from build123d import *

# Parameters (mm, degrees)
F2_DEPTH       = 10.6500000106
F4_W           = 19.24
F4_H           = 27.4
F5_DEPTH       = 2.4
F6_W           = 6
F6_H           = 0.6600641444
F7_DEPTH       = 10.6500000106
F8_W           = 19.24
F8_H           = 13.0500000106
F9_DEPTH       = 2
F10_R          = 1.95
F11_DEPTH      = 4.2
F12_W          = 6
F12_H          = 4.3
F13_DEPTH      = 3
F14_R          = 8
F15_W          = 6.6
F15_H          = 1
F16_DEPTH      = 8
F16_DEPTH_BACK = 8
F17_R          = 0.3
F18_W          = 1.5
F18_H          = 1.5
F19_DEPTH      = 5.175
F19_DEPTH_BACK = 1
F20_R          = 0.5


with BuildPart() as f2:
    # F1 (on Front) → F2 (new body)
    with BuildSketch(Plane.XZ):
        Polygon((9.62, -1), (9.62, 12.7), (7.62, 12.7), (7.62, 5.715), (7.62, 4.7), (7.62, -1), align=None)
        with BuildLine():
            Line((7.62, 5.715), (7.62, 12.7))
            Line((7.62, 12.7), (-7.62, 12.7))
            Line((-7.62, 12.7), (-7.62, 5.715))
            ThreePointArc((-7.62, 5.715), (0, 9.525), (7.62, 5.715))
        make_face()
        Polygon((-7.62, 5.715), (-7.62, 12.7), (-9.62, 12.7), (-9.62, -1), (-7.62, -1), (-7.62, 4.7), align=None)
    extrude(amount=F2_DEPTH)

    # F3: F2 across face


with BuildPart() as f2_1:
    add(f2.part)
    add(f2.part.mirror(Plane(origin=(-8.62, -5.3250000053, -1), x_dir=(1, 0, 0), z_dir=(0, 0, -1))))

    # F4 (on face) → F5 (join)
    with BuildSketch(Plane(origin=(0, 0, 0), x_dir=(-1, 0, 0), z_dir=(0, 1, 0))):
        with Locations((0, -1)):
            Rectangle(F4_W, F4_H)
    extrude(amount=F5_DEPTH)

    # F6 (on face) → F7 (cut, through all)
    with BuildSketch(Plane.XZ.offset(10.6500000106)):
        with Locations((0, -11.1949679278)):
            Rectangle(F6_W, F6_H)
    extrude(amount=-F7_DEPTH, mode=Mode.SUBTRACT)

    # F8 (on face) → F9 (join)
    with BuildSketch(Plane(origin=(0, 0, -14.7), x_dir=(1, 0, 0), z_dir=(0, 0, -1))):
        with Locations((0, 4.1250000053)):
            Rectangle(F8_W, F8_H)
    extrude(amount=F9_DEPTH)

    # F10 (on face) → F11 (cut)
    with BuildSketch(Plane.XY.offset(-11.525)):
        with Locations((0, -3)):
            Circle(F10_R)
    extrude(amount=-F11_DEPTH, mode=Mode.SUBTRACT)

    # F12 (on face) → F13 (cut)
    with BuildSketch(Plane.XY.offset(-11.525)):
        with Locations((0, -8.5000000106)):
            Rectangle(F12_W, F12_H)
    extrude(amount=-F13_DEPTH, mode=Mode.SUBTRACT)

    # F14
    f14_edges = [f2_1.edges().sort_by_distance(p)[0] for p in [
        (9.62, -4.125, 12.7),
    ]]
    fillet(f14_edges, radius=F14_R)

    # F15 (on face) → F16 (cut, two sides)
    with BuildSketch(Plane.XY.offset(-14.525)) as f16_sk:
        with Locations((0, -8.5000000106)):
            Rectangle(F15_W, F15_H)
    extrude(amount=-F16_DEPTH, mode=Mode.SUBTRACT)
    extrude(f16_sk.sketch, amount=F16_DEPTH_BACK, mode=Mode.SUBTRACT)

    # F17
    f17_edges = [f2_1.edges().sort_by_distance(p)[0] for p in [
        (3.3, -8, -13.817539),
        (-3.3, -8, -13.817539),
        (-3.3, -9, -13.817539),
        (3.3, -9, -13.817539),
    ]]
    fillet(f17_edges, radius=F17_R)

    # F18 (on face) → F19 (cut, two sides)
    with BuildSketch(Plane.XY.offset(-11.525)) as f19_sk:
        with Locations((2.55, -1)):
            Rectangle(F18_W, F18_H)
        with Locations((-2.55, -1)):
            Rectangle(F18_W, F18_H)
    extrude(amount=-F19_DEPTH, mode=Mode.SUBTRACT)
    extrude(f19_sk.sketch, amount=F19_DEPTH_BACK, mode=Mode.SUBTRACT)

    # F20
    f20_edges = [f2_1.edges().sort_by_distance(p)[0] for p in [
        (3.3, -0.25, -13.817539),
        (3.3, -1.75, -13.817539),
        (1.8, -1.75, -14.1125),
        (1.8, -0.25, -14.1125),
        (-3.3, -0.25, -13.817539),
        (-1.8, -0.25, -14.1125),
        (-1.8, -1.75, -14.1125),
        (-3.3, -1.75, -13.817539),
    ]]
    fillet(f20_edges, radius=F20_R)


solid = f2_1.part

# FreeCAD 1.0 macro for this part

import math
import FreeCAD as App
import Part
import Sketcher
Q = App.Units.Quantity


def edges_at(feature, points):
    """Names of the edges that pass closest to the given points."""
    edges = feature.Shape.Edges
    near = lambda p: min(range(len(edges)), key=lambda i: edges[i].distToShape(Part.Vertex(*p))[0])
    return sorted({f"Edge{near(p) + 1}" for p in points})


def add_polygon(sketch, points):
    """Adds a closed chain of lines whose ends are joined by coincident constraints."""
    first, n = sketch.GeometryCount, len(points)
    for a, b in zip(points, points[1:] + points[:1]):
        sketch.addGeometry(Part.LineSegment(App.Vector(*a, 0), App.Vector(*b, 0)), False)
    for i in range(n):
        sketch.addConstraint(Sketcher.Constraint("Coincident", first + i, 2, first + (i + 1) % n, 1))

doc = App.newDocument("Part")
params = doc.addObject("Spreadsheet::Sheet", "Params")
for row, (alias, value) in enumerate([
    ("sketch1_width", "2 mm"),
    ("sketch1_height", "13.7 mm"),
    ("sketch1_width2", "19.24 mm"),
    ("pad1_length", "10.65 mm"),
    ("sketch2_height", "27.4 mm"),
    ("sketch2_width", "19.24 mm"),
    ("pad2_length", "2.4 mm"),
    ("sketch3_width", "6 mm"),
    ("pocket1_length", "10.65 mm"),
    ("sketch4_width", "19.24 mm"),
    ("sketch4_height", "13.05 mm"),
    ("pad3_length", "2 mm"),
    ("sketch5_diameter", "3.9 mm"),
    ("pocket2_length", "4.2 mm"),
    ("sketch6_width", "6 mm"),
    ("sketch6_height", "4.3 mm"),
    ("pocket3_length", "3 mm"),
    ("fillet_radius", "8 mm"),
    ("sketch7_height", "1 mm"),
    ("sketch7_width", "6.6 mm"),
    ("pocket4_length", "8 mm"),
    ("pocket4_length2", "8 mm"),
    ("fillet2_radius", "0.3 mm"),
    ("sketch8_width", "1.5 mm"),
    ("pocket5_length", "5.175 mm"),
    ("pocket5_length2", "1 mm"),
    ("fillet3_radius", "0.5 mm"),
], start=1):
    params.set(f"A{row}", alias)
    params.set(f"B{row}", "=" + value)
    params.setAlias(f"B{row}", alias)

body = doc.addObject("PartDesign::Body", "Body")

# Sketch on XZ plane
sketch1 = doc.addObject("Sketcher::SketchObject", "Sketch")
body.addObject(sketch1)
sketch1.AttachmentSupport = (doc.XZ_Plane, [""])
sketch1.MapMode = "FlatFace"
sketch1.addGeometry(Part.LineSegment(App.Vector(9.6, -1, 0), App.Vector(9.6, 12.7, 0)), False)
sketch1.addGeometry(Part.LineSegment(App.Vector(9.6, 12.7, 0), App.Vector(-9.6, 12.7, 0)), False)
sketch1.addGeometry(Part.LineSegment(App.Vector(-9.6, 12.7, 0), App.Vector(-9.6, -1, 0)), False)
sketch1.addGeometry(Part.LineSegment(App.Vector(-9.6, -1, 0), App.Vector(-7.6, -1, 0)), False)
sketch1.addGeometry(Part.LineSegment(App.Vector(-7.6, -1, 0), App.Vector(-7.6, 5.7, 0)), False)
sketch1.addGeometry(Part.ArcOfCircle(Part.Circle(App.Vector(0, 0, 0), App.Vector(0, 0, 1), 9.5), math.radians(37), math.radians(143)), False)
sketch1.addGeometry(Part.LineSegment(App.Vector(7.6, 5.7, 0), App.Vector(7.6, -1, 0)), False)
sketch1.addGeometry(Part.LineSegment(App.Vector(7.6, -1, 0), App.Vector(9.6, -1, 0)), False)
sketch1.addConstraint(Sketcher.Constraint("Coincident", 0, 2, 1, 1))
sketch1.addConstraint(Sketcher.Constraint("Coincident", 1, 2, 2, 1))
sketch1.addConstraint(Sketcher.Constraint("Coincident", 2, 2, 3, 1))
sketch1.addConstraint(Sketcher.Constraint("Coincident", 3, 2, 4, 1))
sketch1.addConstraint(Sketcher.Constraint("Coincident", 4, 2, 5, 2))
sketch1.addConstraint(Sketcher.Constraint("Coincident", 5, 1, 6, 1))
sketch1.addConstraint(Sketcher.Constraint("Coincident", 6, 2, 7, 1))
sketch1.addConstraint(Sketcher.Constraint("Coincident", 7, 2, 0, 1))
sketch1.addConstraint(Sketcher.Constraint("Vertical", 0))
sketch1.addConstraint(Sketcher.Constraint("Horizontal", 1))
sketch1.addConstraint(Sketcher.Constraint("Vertical", 2))
sketch1.addConstraint(Sketcher.Constraint("Horizontal", 3))
sketch1.addConstraint(Sketcher.Constraint("Vertical", 4))
sketch1.addConstraint(Sketcher.Constraint("Vertical", 6))
sketch1.addConstraint(Sketcher.Constraint("Horizontal", 7))
sketch1.addConstraint(Sketcher.Constraint("Coincident", 5, 3, -1, 1))
sketch1.addConstraint(Sketcher.Constraint("Symmetric", 3, 2, 6, 2, -2))
sketch1.addConstraint(Sketcher.Constraint("Equal", 3, 7))
sketch1.addConstraint(Sketcher.Constraint("DistanceX", 3, 1, 3, 2, Q("2 mm")))
sketch1.addConstraint(Sketcher.Constraint("DistanceY", 0, 1, 0, 2, Q("13.7 mm")))
sketch1.addConstraint(Sketcher.Constraint("DistanceY", 2, 2, -1, 1, Q("1 mm")))
sketch1.addConstraint(Sketcher.Constraint("Radius", 5, Q("9.525 mm")))
sketch1.addConstraint(Sketcher.Constraint("DistanceX", 1, 2, 1, 1, Q("19.24 mm")))
sketch1.setExpression("Constraints[18]", "Params.sketch1_width")
sketch1.setExpression("Constraints[19]", "Params.sketch1_height")
sketch1.setExpression("Constraints[22]", "Params.sketch1_width2")
pad1 = doc.addObject("PartDesign::Pad", "Pad")
body.addObject(pad1)
pad1.Profile = sketch1
pad1.setExpression("Length", "Params.pad1_length")
body2 = doc.addObject("PartDesign::Body", "Body001")
doc.recompute()

body2.BaseFeature = body
doc.recompute()

mirroring = doc.addObject("Part::Mirroring", "Mirroring")
mirroring.Source = body
mirroring.Base = App.Vector(-8.62, -5.325, -1)
mirroring.Normal = App.Vector(0, 0, -1)
body3 = doc.addObject("PartDesign::Body", "Body002")
body3.BaseFeature = mirroring
boolean = doc.addObject("PartDesign::Boolean", "Boolean")
body2.addObject(boolean)
boolean.Type = "Fuse"
boolean.addObjects([body3])
doc.recompute()

# Sketch on XZ plane
sketch2 = doc.addObject("Sketcher::SketchObject", "Sketch001")
body2.addObject(sketch2)
sketch2.AttachmentSupport = (doc.getObject("XZ_Plane001"), [""])
sketch2.MapMode = "FlatFace"
add_polygon(sketch2, [(10, 13), (10, -15), (-10, -15), (-10, 13)])  # lines 0-3
sketch2.addConstraint(Sketcher.Constraint("Vertical", 0))
sketch2.addConstraint(Sketcher.Constraint("Horizontal", 1))
sketch2.addConstraint(Sketcher.Constraint("Vertical", 2))
sketch2.addConstraint(Sketcher.Constraint("Horizontal", 3))
sketch2.addConstraint(Sketcher.Constraint("DistanceY", 0, 2, 0, 1, Q("27.4 mm")))
sketch2.addConstraint(Sketcher.Constraint("DistanceX", 1, 2, 1, 1, Q("19.24 mm")))
sketch2.addConstraint(Sketcher.Constraint("DistanceY", 0, 2, -1, 1, Q("14.7 mm")))
sketch2.addConstraint(Sketcher.Constraint("DistanceX", -1, 1, 0, 2, Q("9.62 mm")))
sketch2.setExpression("Constraints[8]", "Params.sketch2_height")
sketch2.setExpression("Constraints[9]", "Params.sketch2_width")
pad2 = doc.addObject("PartDesign::Pad", "Pad001")
body2.addObject(pad2)
pad2.Profile = sketch2
pad2.setExpression("Length", "Params.pad2_length")
pad2.Reversed = True

# Sketch on XZ plane
sketch3 = doc.addObject("Sketcher::SketchObject", "Sketch002")
body2.addObject(sketch3)
sketch3.AttachmentSupport = (doc.getObject("XZ_Plane001"), [""])
sketch3.MapMode = "FlatFace"
sketch3.AttachmentOffset = App.Placement(App.Vector(0, 0, 10.65), App.Rotation())
add_polygon(sketch3, [(-3, -10.9), (-3, -11.5), (3, -11.5), (3, -10.9)])  # lines 0-3
sketch3.addConstraint(Sketcher.Constraint("Vertical", 0))
sketch3.addConstraint(Sketcher.Constraint("Horizontal", 1))
sketch3.addConstraint(Sketcher.Constraint("Vertical", 2))
sketch3.addConstraint(Sketcher.Constraint("Horizontal", 3))
sketch3.addConstraint(Sketcher.Constraint("DistanceX", 1, 1, 1, 2, Q("6 mm")))
sketch3.addConstraint(Sketcher.Constraint("DistanceX", 0, 2, -1, 1, Q("3 mm")))
sketch3.addConstraint(Sketcher.Constraint("DistanceY", 0, 2, -1, 1, Q("11.525 mm")))
sketch3.addConstraint(Sketcher.Constraint("DistanceY", 0, 2, 0, 1, Q("0.660064 mm")))
sketch3.setExpression("Constraints[8]", "Params.sketch3_width")
pocket1 = doc.addObject("PartDesign::Pocket", "Pocket")
body2.addObject(pocket1)
pocket1.Profile = sketch3
pocket1.setExpression("Length", "Params.pocket1_length")

# Sketch on XY plane
sketch4 = doc.addObject("Sketcher::SketchObject", "Sketch003")
body2.addObject(sketch4)
sketch4.AttachmentSupport = (doc.getObject("XY_Plane001"), [""])
sketch4.MapMode = "FlatFace"
sketch4.AttachmentOffset = App.Placement(App.Vector(0, 0, -14.7), App.Rotation())
add_polygon(sketch4, [(-10, -11), (-10, 2), (10, 2), (10, -11)])  # lines 0-3
sketch4.addConstraint(Sketcher.Constraint("Vertical", 0))
sketch4.addConstraint(Sketcher.Constraint("Horizontal", 1))
sketch4.addConstraint(Sketcher.Constraint("Vertical", 2))
sketch4.addConstraint(Sketcher.Constraint("Horizontal", 3))
sketch4.addConstraint(Sketcher.Constraint("DistanceX", 1, 1, 1, 2, Q("19.24 mm")))
sketch4.addConstraint(Sketcher.Constraint("DistanceY", 0, 1, 0, 2, Q("13.05 mm")))
sketch4.addConstraint(Sketcher.Constraint("DistanceY", -1, 1, 0, 2, Q("2.4 mm")))
sketch4.addConstraint(Sketcher.Constraint("DistanceX", 0, 2, -1, 1, Q("9.62 mm")))
sketch4.setExpression("Constraints[8]", "Params.sketch4_width")
sketch4.setExpression("Constraints[9]", "Params.sketch4_height")
pad3 = doc.addObject("PartDesign::Pad", "Pad002")
body2.addObject(pad3)
pad3.Profile = sketch4
pad3.setExpression("Length", "Params.pad3_length")
pad3.Reversed = True

# Sketch on XY plane
sketch5 = doc.addObject("Sketcher::SketchObject", "Sketch004")
body2.addObject(sketch5)
sketch5.AttachmentSupport = (doc.getObject("XY_Plane001"), [""])
sketch5.MapMode = "FlatFace"
sketch5.AttachmentOffset = App.Placement(App.Vector(0, 0, -11.525), App.Rotation())
sketch5.addGeometry(Part.Circle(App.Vector(0, -3, 0), App.Vector(0, 0, 1), 1.9), False)
sketch5.addConstraint(Sketcher.Constraint("PointOnObject", 0, 3, -2))
sketch5.addConstraint(Sketcher.Constraint("Diameter", 0, Q("3.9 mm")))
sketch5.addConstraint(Sketcher.Constraint("DistanceY", 0, 3, -1, 1, Q("3 mm")))
sketch5.setExpression("Constraints[1]", "Params.sketch5_diameter")
pocket2 = doc.addObject("PartDesign::Pocket", "Pocket001")
body2.addObject(pocket2)
pocket2.Profile = sketch5
pocket2.setExpression("Length", "Params.pocket2_length")

# Sketch on XY plane
sketch6 = doc.addObject("Sketcher::SketchObject", "Sketch005")
body2.addObject(sketch6)
sketch6.AttachmentSupport = (doc.getObject("XY_Plane001"), [""])
sketch6.MapMode = "FlatFace"
sketch6.AttachmentOffset = App.Placement(App.Vector(0, 0, -11.525), App.Rotation())
add_polygon(sketch6, [(-3, -6.4), (-3, -10.7), (3, -10.7), (3, -6.4)])  # lines 0-3
sketch6.addConstraint(Sketcher.Constraint("Vertical", 0))
sketch6.addConstraint(Sketcher.Constraint("Horizontal", 1))
sketch6.addConstraint(Sketcher.Constraint("Vertical", 2))
sketch6.addConstraint(Sketcher.Constraint("Horizontal", 3))
sketch6.addConstraint(Sketcher.Constraint("DistanceX", 1, 1, 1, 2, Q("6 mm")))
sketch6.addConstraint(Sketcher.Constraint("DistanceY", 0, 2, 0, 1, Q("4.3 mm")))
sketch6.addConstraint(Sketcher.Constraint("DistanceX", 0, 2, -1, 1, Q("3 mm")))
sketch6.addConstraint(Sketcher.Constraint("DistanceY", 0, 2, -1, 1, Q("10.65 mm")))
sketch6.setExpression("Constraints[8]", "Params.sketch6_width")
sketch6.setExpression("Constraints[9]", "Params.sketch6_height")
pocket3 = doc.addObject("PartDesign::Pocket", "Pocket002")
body2.addObject(pocket3)
pocket3.Profile = sketch6
pocket3.setExpression("Length", "Params.pocket3_length")
doc.recompute()

fillet = doc.addObject("PartDesign::Fillet", "Fillet")
body2.addObject(fillet)
fillet.Base = (pocket3, edges_at(pocket3, [(9.62, -4.125, 12.7)]))
fillet.setExpression("Radius", "Params.fillet_radius")

# Sketch on XY plane
sketch7 = doc.addObject("Sketcher::SketchObject", "Sketch006")
body2.addObject(sketch7)
sketch7.AttachmentSupport = (doc.getObject("XY_Plane001"), [""])
sketch7.MapMode = "FlatFace"
sketch7.AttachmentOffset = App.Placement(App.Vector(0, 0, -14.525), App.Rotation())
add_polygon(sketch7, [(-3.3, -8), (-3.3, -9), (3.3, -9), (3.3, -8)])  # lines 0-3
sketch7.addConstraint(Sketcher.Constraint("Vertical", 0))
sketch7.addConstraint(Sketcher.Constraint("Horizontal", 1))
sketch7.addConstraint(Sketcher.Constraint("Vertical", 2))
sketch7.addConstraint(Sketcher.Constraint("Horizontal", 3))
sketch7.addConstraint(Sketcher.Constraint("DistanceY", 0, 2, 0, 1, Q("1 mm")))
sketch7.addConstraint(Sketcher.Constraint("DistanceX", 1, 1, 1, 2, Q("6.6 mm")))
sketch7.addConstraint(Sketcher.Constraint("DistanceY", 0, 2, -1, 1, Q("9 mm")))
sketch7.addConstraint(Sketcher.Constraint("DistanceX", 0, 2, -1, 1, Q("3.3 mm")))
sketch7.setExpression("Constraints[8]", "Params.sketch7_height")
sketch7.setExpression("Constraints[9]", "Params.sketch7_width")
pocket4 = doc.addObject("PartDesign::Pocket", "Pocket003")
body2.addObject(pocket4)
pocket4.Profile = sketch7
pocket4.Type = "TwoLengths"
pocket4.setExpression("Length", "Params.pocket4_length")
pocket4.setExpression("Length2", "Params.pocket4_length2")
doc.recompute()

fillet2 = doc.addObject("PartDesign::Fillet", "Fillet001")
body2.addObject(fillet2)
fillet2.Base = (pocket4, edges_at(pocket4, [
    (3.3, -8, -13.818),
    (-3.3, -8, -13.818),
    (-3.3, -9, -13.818),
    (3.3, -9, -13.818),
]))
fillet2.setExpression("Radius", "Params.fillet2_radius")

# Sketch on XY plane
sketch8 = doc.addObject("Sketcher::SketchObject", "Sketch007")
body2.addObject(sketch8)
sketch8.AttachmentSupport = (doc.getObject("XY_Plane001"), [""])
sketch8.MapMode = "FlatFace"
sketch8.AttachmentOffset = App.Placement(App.Vector(0, 0, -11.525), App.Rotation())
add_polygon(sketch8, [(1.8, -0.2), (1.8, -1.8), (3.3, -1.8), (3.3, -0.2)])  # lines 0-3
add_polygon(sketch8, [(-3.3, -0.2), (-3.3, -1.8), (-1.8, -1.8), (-1.8, -0.2)])  # lines 4-7
sketch8.addConstraint(Sketcher.Constraint("Vertical", 0))
sketch8.addConstraint(Sketcher.Constraint("Horizontal", 1))
sketch8.addConstraint(Sketcher.Constraint("Vertical", 2))
sketch8.addConstraint(Sketcher.Constraint("Horizontal", 3))
sketch8.addConstraint(Sketcher.Constraint("Vertical", 4))
sketch8.addConstraint(Sketcher.Constraint("Horizontal", 5))
sketch8.addConstraint(Sketcher.Constraint("Vertical", 6))
sketch8.addConstraint(Sketcher.Constraint("Horizontal", 7))
sketch8.addConstraint(Sketcher.Constraint("Symmetric", 1, 2, 4, 2, -2))
sketch8.addConstraint(Sketcher.Constraint("Symmetric", 3, 2, 6, 2, -2))
sketch8.addConstraint(Sketcher.Constraint("Equal", 7, 0))
sketch8.addConstraint(Sketcher.Constraint("DistanceX", 1, 1, 1, 2, Q("1.5 mm")))
sketch8.addConstraint(Sketcher.Constraint("DistanceX", -1, 1, 0, 2, Q("1.8 mm")))
sketch8.addConstraint(Sketcher.Constraint("DistanceY", 0, 2, -1, 1, Q("1.75 mm")))
sketch8.setExpression("Constraints[19]", "Params.sketch8_width")
pocket5 = doc.addObject("PartDesign::Pocket", "Pocket004")
body2.addObject(pocket5)
pocket5.Profile = sketch8
pocket5.Type = "TwoLengths"
pocket5.setExpression("Length", "Params.pocket5_length")
pocket5.setExpression("Length2", "Params.pocket5_length2")
doc.recompute()

fillet3 = doc.addObject("PartDesign::Fillet", "Fillet002")
body2.addObject(fillet3)
fillet3.Base = (pocket5, edges_at(pocket5, [
    (3.3, -0.25, -13.818),
    (3.3, -1.75, -13.818),
    (1.8, -1.75, -14.113),
    (1.8, -0.25, -14.113),
    (-3.3, -0.25, -13.818),
    (-1.8, -0.25, -14.113),
    (-1.8, -1.75, -14.113),
    (-3.3, -1.75, -13.818),
]))
fillet3.setExpression("Radius", "Params.fillet3_radius")
mirroring.Visibility = False

doc.recompute()
